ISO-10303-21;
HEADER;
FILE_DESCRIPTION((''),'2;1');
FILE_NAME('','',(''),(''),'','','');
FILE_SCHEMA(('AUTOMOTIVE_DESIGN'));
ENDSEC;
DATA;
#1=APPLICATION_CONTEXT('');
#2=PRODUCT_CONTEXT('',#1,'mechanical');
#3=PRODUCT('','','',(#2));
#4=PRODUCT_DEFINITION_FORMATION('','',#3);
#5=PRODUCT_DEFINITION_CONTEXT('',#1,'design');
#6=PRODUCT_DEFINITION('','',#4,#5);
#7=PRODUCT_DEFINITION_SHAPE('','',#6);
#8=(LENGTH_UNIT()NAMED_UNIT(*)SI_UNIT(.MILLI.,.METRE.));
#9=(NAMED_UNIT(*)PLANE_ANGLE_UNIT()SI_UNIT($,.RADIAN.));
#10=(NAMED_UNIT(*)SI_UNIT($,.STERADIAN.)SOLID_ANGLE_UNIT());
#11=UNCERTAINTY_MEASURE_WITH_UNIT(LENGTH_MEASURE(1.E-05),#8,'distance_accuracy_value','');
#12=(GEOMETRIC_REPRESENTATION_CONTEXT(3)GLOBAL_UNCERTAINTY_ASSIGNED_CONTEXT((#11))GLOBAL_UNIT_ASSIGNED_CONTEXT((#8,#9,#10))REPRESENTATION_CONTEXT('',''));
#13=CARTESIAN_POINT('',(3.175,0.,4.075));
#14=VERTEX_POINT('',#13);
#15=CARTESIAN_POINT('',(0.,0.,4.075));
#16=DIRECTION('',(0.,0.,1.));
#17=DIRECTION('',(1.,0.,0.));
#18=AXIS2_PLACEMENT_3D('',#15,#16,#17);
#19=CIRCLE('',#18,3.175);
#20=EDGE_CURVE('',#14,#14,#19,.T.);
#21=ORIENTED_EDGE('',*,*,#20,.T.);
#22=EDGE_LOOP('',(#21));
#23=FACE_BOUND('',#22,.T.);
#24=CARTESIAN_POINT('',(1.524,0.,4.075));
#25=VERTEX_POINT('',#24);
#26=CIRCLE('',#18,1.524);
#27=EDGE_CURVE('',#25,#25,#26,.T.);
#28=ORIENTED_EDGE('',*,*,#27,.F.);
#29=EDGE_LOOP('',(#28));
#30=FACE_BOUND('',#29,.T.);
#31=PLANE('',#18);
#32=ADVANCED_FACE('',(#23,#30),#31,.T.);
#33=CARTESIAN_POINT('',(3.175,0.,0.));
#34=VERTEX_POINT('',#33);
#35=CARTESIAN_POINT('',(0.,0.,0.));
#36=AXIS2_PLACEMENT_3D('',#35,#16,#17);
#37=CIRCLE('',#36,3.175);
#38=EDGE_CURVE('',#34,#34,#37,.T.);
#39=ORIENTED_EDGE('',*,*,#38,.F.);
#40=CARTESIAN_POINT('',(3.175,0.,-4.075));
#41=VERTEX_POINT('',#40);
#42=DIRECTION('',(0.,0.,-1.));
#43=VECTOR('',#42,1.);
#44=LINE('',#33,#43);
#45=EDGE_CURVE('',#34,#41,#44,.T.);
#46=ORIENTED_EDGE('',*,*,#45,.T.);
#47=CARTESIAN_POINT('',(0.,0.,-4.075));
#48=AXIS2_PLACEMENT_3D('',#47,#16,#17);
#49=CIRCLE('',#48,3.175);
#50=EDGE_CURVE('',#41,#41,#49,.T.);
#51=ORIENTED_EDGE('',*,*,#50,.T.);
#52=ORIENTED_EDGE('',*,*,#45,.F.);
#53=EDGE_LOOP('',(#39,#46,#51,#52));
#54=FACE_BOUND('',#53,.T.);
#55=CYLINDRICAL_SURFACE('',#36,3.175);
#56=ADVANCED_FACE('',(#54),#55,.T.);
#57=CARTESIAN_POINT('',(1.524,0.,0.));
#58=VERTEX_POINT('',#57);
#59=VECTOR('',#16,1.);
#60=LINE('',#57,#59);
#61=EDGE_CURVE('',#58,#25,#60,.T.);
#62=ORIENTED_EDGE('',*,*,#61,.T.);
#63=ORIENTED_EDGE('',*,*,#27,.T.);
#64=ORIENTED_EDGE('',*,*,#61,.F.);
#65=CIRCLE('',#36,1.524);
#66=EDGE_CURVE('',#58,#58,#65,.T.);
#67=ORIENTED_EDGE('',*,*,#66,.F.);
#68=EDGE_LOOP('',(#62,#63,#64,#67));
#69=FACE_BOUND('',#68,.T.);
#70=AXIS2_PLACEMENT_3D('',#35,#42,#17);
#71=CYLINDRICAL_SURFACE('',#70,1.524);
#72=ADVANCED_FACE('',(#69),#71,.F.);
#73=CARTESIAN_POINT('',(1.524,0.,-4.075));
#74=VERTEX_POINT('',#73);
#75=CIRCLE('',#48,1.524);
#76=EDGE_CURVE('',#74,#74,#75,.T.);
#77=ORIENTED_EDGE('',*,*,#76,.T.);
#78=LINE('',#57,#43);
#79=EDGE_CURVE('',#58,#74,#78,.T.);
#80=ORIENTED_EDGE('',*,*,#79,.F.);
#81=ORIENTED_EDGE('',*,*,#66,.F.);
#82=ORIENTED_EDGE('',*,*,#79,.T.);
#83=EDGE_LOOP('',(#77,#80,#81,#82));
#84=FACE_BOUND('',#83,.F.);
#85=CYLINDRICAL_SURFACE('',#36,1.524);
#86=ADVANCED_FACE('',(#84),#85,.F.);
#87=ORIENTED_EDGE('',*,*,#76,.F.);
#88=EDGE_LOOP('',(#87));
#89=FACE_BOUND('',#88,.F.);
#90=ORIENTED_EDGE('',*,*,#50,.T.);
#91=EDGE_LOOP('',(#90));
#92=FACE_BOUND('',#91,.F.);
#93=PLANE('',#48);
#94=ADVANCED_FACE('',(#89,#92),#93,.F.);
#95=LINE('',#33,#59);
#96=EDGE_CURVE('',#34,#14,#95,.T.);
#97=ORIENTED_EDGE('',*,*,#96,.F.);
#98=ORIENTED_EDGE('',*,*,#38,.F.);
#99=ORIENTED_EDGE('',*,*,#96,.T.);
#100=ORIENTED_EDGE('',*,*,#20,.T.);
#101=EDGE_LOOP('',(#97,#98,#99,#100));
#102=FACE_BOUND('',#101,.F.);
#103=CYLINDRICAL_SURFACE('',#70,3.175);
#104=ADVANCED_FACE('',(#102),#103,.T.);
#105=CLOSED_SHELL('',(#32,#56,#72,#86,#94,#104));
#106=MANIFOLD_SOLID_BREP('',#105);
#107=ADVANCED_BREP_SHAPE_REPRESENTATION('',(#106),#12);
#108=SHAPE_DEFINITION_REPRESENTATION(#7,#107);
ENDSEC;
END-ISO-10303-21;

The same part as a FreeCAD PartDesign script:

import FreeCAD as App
import Part
import Sketcher
from FreeCAD import Vector
Q = App.Units.Quantity

doc = App.newDocument("Part")
body = doc.addObject("PartDesign::Body", "Body")

# Sketch on XY plane
sketch1 = body.newObject("Sketcher::SketchObject", "Sketch")
sketch1.AttachmentSupport = (doc.getObject("XY_Plane"), [""])
sketch1.MapMode = "FlatFace"
sketch1.addGeometry(Part.Circle(Vector(0, 0, 0), Vector(0, 0, 1), 3.2), False)
sketch1.addGeometry(Part.Circle(Vector(0, 0, 0), Vector(0, 0, 1), 1.5), False)
sketch1.addConstraint(Sketcher.Constraint("Coincident", 0, 3, -1, 1))
sketch1.addConstraint(Sketcher.Constraint("Coincident", 1, 3, -1, 1))
sketch1.addConstraint(Sketcher.Constraint("Diameter", 0, Q("0.25 in")))
sketch1.addConstraint(Sketcher.Constraint("Diameter", 1, Q("0.12 in")))
pad1 = body.newObject("PartDesign::Pad", "Pad")
pad1.Profile = sketch1
pad1.Length = 8.15
pad1.Midplane = True

doc.recompute()
